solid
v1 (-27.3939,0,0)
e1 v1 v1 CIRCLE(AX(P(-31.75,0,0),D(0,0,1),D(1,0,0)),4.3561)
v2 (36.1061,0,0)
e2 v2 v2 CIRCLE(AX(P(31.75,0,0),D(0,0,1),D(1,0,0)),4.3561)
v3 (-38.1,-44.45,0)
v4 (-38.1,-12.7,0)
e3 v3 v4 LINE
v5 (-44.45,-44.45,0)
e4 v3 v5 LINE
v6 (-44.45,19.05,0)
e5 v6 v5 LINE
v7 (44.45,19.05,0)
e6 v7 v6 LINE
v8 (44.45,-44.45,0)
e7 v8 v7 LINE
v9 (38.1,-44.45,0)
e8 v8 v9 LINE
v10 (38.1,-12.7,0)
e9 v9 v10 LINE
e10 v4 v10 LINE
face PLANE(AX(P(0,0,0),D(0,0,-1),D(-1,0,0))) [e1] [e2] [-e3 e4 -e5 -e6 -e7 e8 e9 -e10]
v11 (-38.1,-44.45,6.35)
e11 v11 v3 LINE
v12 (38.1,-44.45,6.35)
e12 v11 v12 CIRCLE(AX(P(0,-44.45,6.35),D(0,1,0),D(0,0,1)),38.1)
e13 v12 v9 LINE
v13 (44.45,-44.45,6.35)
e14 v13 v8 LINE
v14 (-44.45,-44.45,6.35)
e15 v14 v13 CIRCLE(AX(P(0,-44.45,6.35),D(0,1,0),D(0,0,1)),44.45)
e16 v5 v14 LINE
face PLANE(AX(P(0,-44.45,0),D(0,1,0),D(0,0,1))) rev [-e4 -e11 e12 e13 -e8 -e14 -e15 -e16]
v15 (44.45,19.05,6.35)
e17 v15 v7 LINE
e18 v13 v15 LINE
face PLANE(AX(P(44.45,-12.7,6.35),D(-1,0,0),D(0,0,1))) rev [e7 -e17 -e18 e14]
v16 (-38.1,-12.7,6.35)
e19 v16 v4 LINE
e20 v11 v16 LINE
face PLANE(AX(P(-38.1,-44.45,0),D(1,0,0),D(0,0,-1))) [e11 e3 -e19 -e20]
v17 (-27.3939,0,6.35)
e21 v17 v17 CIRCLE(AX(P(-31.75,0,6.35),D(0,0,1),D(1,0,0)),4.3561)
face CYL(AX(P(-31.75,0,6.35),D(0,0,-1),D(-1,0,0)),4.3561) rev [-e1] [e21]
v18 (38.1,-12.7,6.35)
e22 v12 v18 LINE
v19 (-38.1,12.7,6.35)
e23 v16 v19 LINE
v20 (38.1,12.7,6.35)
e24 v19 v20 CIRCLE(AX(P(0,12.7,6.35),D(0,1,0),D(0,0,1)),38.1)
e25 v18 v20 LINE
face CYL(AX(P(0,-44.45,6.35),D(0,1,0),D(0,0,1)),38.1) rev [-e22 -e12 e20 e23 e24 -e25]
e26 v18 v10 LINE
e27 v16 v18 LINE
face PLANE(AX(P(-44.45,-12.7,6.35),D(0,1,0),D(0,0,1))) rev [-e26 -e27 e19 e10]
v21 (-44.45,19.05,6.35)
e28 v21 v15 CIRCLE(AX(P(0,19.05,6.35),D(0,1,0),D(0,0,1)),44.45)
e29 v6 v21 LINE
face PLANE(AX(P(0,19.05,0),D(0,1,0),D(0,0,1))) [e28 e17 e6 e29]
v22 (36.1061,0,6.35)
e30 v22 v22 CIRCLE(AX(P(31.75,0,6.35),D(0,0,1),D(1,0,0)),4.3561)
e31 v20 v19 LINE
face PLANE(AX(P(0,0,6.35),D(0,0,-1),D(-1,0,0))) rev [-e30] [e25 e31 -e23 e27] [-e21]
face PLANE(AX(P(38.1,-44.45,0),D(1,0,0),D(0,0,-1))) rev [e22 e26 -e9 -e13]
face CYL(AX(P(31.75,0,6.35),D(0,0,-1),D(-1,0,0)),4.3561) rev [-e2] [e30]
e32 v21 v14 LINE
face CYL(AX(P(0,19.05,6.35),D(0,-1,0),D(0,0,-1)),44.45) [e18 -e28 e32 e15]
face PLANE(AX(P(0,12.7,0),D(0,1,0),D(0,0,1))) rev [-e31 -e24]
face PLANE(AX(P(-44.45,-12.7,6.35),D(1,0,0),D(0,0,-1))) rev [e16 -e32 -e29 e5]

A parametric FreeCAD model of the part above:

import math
import FreeCAD as App
import Part
import Sketcher

V = App.Vector
Q = App.Units.Quantity

doc = App.newDocument("Part")
body = doc.addObject("PartDesign::Body", "Body")

# Sketch on XY plane
sketch1 = doc.addObject("Sketcher::SketchObject", "Sketch")
body.addObject(sketch1)
sketch1.AttachmentSupport = (doc.XY_Plane, [""])
sketch1.MapMode = "FlatFace"
sketch1.addGeometry([
    Part.LineSegment(V(-44.45, 12.7, 0), V(-44.45, -12.7, 0)),  # 0
    Part.LineSegment(V(-44.45, -12.7, 0), V(44.45, -12.7, 0)),  # 1
    Part.LineSegment(V(44.45, -12.7, 0), V(44.45, 12.7, 0)),  # 2
    Part.LineSegment(V(44.45, 12.7, 0), V(-44.45, 12.7, 0)),  # 3
    Part.Circle(V(-31.75, 0, 0), V(0, 0, 1), 4.3561),  # 4
    Part.Circle(V(31.75, 0, 0), V(0, 0, 1), 4.3561),  # 5
], False)
sketch1.addConstraint([
    Sketcher.Constraint("Coincident", 0, 2, 1, 1),
    Sketcher.Constraint("Coincident", 1, 2, 2, 1),
    Sketcher.Constraint("Coincident", 2, 2, 3, 1),
    Sketcher.Constraint("Coincident", 3, 2, 0, 1),
    Sketcher.Constraint("Vertical", 0),
    Sketcher.Constraint("Horizontal", 1),
    Sketcher.Constraint("Vertical", 2),
    Sketcher.Constraint("Horizontal", 3),
    Sketcher.Constraint("Equal", 4, 5),
    Sketcher.Constraint("Symmetric", 4, 3, 5, 3, -1, 1),
    Sketcher.Constraint("Symmetric", 0, 2, 2, 2, -1, 1),
    Sketcher.Constraint("PointOnObject", 4, 3, -1),
    Sketcher.Constraint("DistanceY", 0, 2, 0, 1, Q("1 in")),
    Sketcher.Constraint("Diameter", 4, Q("0.343 in")),
    Sketcher.Constraint("DistanceX", 1, 1, 1, 2, Q("3.5 in")),
    Sketcher.Constraint("DistanceX", 0, 2, 5, 3, Q("3 in")),
])
pad1 = doc.addObject("PartDesign::Pad", "Pad")
body.addObject(pad1)
pad1.Profile = sketch1
pad1.Length = Q("0.25 in")

# Sketch on XZ plane
sketch2 = doc.addObject("Sketcher::SketchObject", "Sketch001")
body.addObject(sketch2)
sketch2.AttachmentSupport = (doc.XZ_Plane, [""])
sketch2.MapMode = "FlatFace"
sketch2.AttachmentOffset = App.Placement(V(0, 0, -0.5 * 25.4), App.Rotation())
sketch2.addGeometry([
    Part.LineSegment(V(-44.45, 0, 0), V(-44.45, 6.35, 0)),
    Part.ArcOfCircle(Part.Circle(V(0, 6.35, 0), V(0, 0, 1), 44.45), math.radians(0), math.radians(180)),
    Part.LineSegment(V(44.45, 6.35, 0), V(44.45, 0, 0)),
    Part.LineSegment(V(44.45, 0, 0), V(-44.45, 0, 0)),
], False)
sketch2.addConstraint([
    Sketcher.Constraint("Tangent", 0, 2, 1, 2),
    Sketcher.Constraint("Tangent", 1, 1, 2, 1),
    Sketcher.Constraint("Coincident", 2, 2, 3, 1),
    Sketcher.Constraint("Coincident", 3, 2, 0, 1),
    Sketcher.Constraint("Vertical", 0),
    Sketcher.Constraint("Vertical", 2),
    Sketcher.Constraint("Horizontal", 3),
    Sketcher.Constraint("Symmetric", 2, 2, 3, 2, -1, 1),
    Sketcher.Constraint("Radius", 1, Q("1.75 in")),
    Sketcher.Constraint("DistanceY", 0, 1, 0, 2, Q("0.25 in")),
])
pad2 = doc.addObject("PartDesign::Pad", "Pad001")
body.addObject(pad2)
pad2.Profile = sketch2
pad2.Length = Q("0.25 in")
pad2.Reversed = True

# Sketch on XZ plane
sketch3 = doc.addObject("Sketcher::SketchObject", "Sketch002")
body.addObject(sketch3)
sketch3.AttachmentSupport = (doc.XZ_Plane, [""])
sketch3.MapMode = "FlatFace"
sketch3.AttachmentOffset = App.Placement(V(0, 0, 1.75 * 25.4), App.Rotation())
sketch3.addGeometry([
    Part.ArcOfCircle(Part.Circle(V(0, 6.35, 0), V(0, 0, 1), 44.45), math.radians(0), math.radians(180)),  # 0
    Part.LineSegment(V(44.45, 6.35, 0), V(44.45, 0, 0)),  # 1
    Part.LineSegment(V(44.45, 0, 0), V(38.1, 0, 0)),  # 2
    Part.LineSegment(V(38.1, 0, 0), V(38.1, 6.35, 0)),  # 3
    Part.ArcOfCircle(Part.Circle(V(0, 6.35, 0), V(0, 0, 1), 38.1), math.radians(0), math.radians(180)),  # 4
    Part.LineSegment(V(-38.1, 6.35, 0), V(-38.1, 0, 0)),  # 5
    Part.LineSegment(V(-38.1, 0, 0), V(-44.45, 0, 0)),  # 6
    Part.LineSegment(V(-44.45, 0, 0), V(-44.45, 6.35, 0)),  # 7
], False)
sketch3.addConstraint([
    Sketcher.Constraint("Tangent", 0, 1, 1, 1),
    Sketcher.Constraint("Coincident", 1, 2, 2, 1),
    Sketcher.Constraint("Coincident", 2, 2, 3, 1),
    Sketcher.Constraint("Tangent", 3, 2, 4, 1),
    Sketcher.Constraint("Tangent", 4, 2, 5, 1),
    Sketcher.Constraint("Coincident", 5, 2, 6, 1),
    Sketcher.Constraint("Coincident", 6, 2, 7, 1),
    Sketcher.Constraint("Tangent", 7, 2, 0, 2),
    Sketcher.Constraint("Vertical", 1),
    Sketcher.Constraint("Horizontal", 2),
    Sketcher.Constraint("Vertical", 3),
    Sketcher.Constraint("Vertical", 5),
    Sketcher.Constraint("Horizontal", 6),
    Sketcher.Constraint("Vertical", 7),
    Sketcher.Constraint("Coincident", 4, 3, 0, 3),
    Sketcher.Constraint("Symmetric", 2, 2, 5, 2, -1, 1),
    Sketcher.Constraint("PointOnObject", 1, 2, -1),
    Sketcher.Constraint("Equal", 6, 1),
    Sketcher.Constraint("Radius", 4, Q("1.5 in")),
    Sketcher.Constraint("Radius", 0, Q("1.75 in")),
])
pad3 = doc.addObject("PartDesign::Pad", "Pad002")
body.addObject(pad3)
pad3.Profile = sketch3
pad3.Length = Q("2.5 in")
pad3.Reversed = True

doc.recompute()
